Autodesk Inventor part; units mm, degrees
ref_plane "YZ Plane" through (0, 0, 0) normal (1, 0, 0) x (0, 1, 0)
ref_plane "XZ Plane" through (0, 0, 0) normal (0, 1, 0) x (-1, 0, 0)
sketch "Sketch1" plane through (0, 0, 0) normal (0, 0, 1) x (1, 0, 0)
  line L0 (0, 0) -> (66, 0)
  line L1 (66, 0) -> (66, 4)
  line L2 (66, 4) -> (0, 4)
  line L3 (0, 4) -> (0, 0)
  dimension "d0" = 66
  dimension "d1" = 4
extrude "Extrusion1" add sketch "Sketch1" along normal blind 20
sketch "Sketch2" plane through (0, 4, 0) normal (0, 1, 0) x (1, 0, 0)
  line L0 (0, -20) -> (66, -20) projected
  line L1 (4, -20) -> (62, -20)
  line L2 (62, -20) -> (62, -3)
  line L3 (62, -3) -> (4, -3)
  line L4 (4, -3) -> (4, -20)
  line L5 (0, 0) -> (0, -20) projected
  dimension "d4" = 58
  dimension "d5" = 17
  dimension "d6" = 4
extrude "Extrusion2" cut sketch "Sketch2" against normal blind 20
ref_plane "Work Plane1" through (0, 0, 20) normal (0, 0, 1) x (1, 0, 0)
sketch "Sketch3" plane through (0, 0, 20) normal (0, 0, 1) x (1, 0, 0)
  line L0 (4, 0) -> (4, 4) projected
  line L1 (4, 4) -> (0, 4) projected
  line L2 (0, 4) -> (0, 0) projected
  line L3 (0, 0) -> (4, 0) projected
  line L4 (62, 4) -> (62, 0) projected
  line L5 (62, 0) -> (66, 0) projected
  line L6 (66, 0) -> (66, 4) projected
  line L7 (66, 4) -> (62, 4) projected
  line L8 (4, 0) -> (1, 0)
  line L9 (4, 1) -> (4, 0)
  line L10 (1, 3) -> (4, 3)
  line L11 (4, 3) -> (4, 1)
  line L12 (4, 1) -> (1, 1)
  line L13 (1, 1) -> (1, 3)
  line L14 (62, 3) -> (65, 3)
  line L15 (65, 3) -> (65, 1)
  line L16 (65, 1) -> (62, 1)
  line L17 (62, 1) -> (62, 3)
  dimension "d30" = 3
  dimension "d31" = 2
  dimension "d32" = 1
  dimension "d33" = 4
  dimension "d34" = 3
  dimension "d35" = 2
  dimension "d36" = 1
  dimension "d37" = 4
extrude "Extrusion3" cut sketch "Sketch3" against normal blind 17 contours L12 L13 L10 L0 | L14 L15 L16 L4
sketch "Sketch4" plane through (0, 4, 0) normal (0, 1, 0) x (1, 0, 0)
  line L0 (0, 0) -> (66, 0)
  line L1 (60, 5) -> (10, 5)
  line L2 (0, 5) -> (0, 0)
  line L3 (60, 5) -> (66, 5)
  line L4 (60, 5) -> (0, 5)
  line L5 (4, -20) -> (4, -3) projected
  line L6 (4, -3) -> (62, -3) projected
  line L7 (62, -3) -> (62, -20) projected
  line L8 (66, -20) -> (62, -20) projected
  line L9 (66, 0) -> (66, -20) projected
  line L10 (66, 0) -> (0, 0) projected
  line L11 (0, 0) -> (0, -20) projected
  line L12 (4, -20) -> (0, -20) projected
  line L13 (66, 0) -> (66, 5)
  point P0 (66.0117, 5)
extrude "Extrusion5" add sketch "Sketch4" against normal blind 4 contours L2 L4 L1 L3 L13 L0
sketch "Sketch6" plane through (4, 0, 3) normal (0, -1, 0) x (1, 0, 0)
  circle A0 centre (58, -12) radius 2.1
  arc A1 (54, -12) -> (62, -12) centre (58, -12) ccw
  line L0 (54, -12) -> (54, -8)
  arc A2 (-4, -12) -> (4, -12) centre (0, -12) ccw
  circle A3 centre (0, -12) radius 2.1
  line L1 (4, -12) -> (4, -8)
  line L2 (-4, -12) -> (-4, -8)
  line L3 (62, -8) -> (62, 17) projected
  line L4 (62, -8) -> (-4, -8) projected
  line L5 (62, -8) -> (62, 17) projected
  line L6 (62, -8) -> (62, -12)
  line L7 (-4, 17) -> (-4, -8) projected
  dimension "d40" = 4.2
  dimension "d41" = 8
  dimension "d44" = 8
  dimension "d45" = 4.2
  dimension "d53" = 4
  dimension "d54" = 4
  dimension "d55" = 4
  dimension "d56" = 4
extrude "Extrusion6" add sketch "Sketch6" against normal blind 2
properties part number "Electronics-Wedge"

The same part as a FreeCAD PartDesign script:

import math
import FreeCAD as App
import Part
import Sketcher
Q = App.Units.Quantity

doc = App.newDocument("Part")
body = doc.addObject("PartDesign::Body", "Body")

sketch1 = doc.addObject("Sketcher::SketchObject", "Sketch")
body.addObject(sketch1)
sketch1.AttachmentSupport = (doc.XY_Plane, [""])
sketch1.MapMode = "FlatFace"
sketch1.addGeometry([
    Part.LineSegment(App.Vector(0, 4, 0), App.Vector(0, 0, 0)),
    Part.LineSegment(App.Vector(0, 0, 0), App.Vector(66, 0, 0)),
    Part.LineSegment(App.Vector(66, 0, 0), App.Vector(66, 4, 0)),
    Part.LineSegment(App.Vector(66, 4, 0), App.Vector(0, 4, 0)),
], False)
sketch1.addConstraint([
    Sketcher.Constraint("Coincident", 0, 2, 1, 1),
    Sketcher.Constraint("Coincident", 1, 2, 2, 1),
    Sketcher.Constraint("Coincident", 2, 2, 3, 1),
    Sketcher.Constraint("Coincident", 3, 2, 0, 1),
    Sketcher.Constraint("Vertical", 0),
    Sketcher.Constraint("Horizontal", 1),
    Sketcher.Constraint("Vertical", 2),
    Sketcher.Constraint("Horizontal", 3),
    Sketcher.Constraint("Coincident", 0, 2, -1, 1),
    Sketcher.Constraint("DistanceX", 1, 1, 1, 2, Q("66 mm")),
    Sketcher.Constraint("DistanceY", 0, 2, 0, 1, Q("4 mm")),
])
pad1 = doc.addObject("PartDesign::Pad", "Pad")
body.addObject(pad1)
pad1.Profile = sketch1
pad1.Length = 20

sketch2 = doc.addObject("Sketcher::SketchObject", "Sketch001")
body.addObject(sketch2)
sketch2.AttachmentSupport = (doc.XZ_Plane, [""])
sketch2.MapMode = "FlatFace"
sketch2.AttachmentOffset = App.Placement(App.Vector(0, 0, -4), App.Rotation())
sketch2.addGeometry([
    Part.LineSegment(App.Vector(4, 3, 0), App.Vector(4, 20, 0)),
    Part.LineSegment(App.Vector(4, 20, 0), App.Vector(62, 20, 0)),
    Part.LineSegment(App.Vector(62, 20, 0), App.Vector(62, 3, 0)),
    Part.LineSegment(App.Vector(62, 3, 0), App.Vector(4, 3, 0)),
], False)
sketch2.addConstraint([
    Sketcher.Constraint("Coincident", 0, 2, 1, 1),
    Sketcher.Constraint("Coincident", 1, 2, 2, 1),
    Sketcher.Constraint("Coincident", 2, 2, 3, 1),
    Sketcher.Constraint("Coincident", 3, 2, 0, 1),
    Sketcher.Constraint("Vertical", 0),
    Sketcher.Constraint("Horizontal", 1),
    Sketcher.Constraint("Vertical", 2),
    Sketcher.Constraint("Horizontal", 3),
    Sketcher.Constraint("DistanceX", 1, 1, 1, 2, Q("58 mm")),
    Sketcher.Constraint("DistanceY", 0, 1, 0, 2, Q("17 mm")),
    Sketcher.Constraint("DistanceX", -1, 1, 0, 2, Q("4 mm")),
    Sketcher.Constraint("DistanceY", -1, 1, 0, 2, Q("20 mm")),
])
pocket1 = doc.addObject("PartDesign::Pocket", "Pocket")
body.addObject(pocket1)
pocket1.Profile = sketch2
pocket1.Length = 20
pocket1.Reversed = True

sketch3 = doc.addObject("Sketcher::SketchObject", "Sketch002")
body.addObject(sketch3)
sketch3.AttachmentSupport = (doc.XY_Plane, [""])
sketch3.MapMode = "FlatFace"
sketch3.AttachmentOffset = App.Placement(App.Vector(0, 0, 20), App.Rotation())
sketch3.addGeometry([
    Part.LineSegment(App.Vector(1, 1, 0), App.Vector(4, 1, 0)),
    Part.LineSegment(App.Vector(4, 1, 0), App.Vector(4, 3, 0)),
    Part.LineSegment(App.Vector(4, 3, 0), App.Vector(1, 3, 0)),
    Part.LineSegment(App.Vector(1, 3, 0), App.Vector(1, 1, 0)),
    Part.LineSegment(App.Vector(65, 3, 0), App.Vector(62, 3, 0)),
    Part.LineSegment(App.Vector(62, 3, 0), App.Vector(62, 1, 0)),
    Part.LineSegment(App.Vector(62, 1, 0), App.Vector(65, 1, 0)),
    Part.LineSegment(App.Vector(65, 1, 0), App.Vector(65, 3, 0)),
], False)
sketch3.addConstraint([
    Sketcher.Constraint("Coincident", 0, 2, 1, 1),
    Sketcher.Constraint("Coincident", 1, 2, 2, 1),
    Sketcher.Constraint("Coincident", 2, 2, 3, 1),
    Sketcher.Constraint("Coincident", 3, 2, 0, 1),
    Sketcher.Constraint("Coincident", 4, 2, 5, 1),
    Sketcher.Constraint("Coincident", 5, 2, 6, 1),
    Sketcher.Constraint("Coincident", 6, 2, 7, 1),
    Sketcher.Constraint("Coincident", 7, 2, 4, 1),
    Sketcher.Constraint("Horizontal", 0),
    Sketcher.Constraint("Vertical", 1),
    Sketcher.Constraint("Horizontal", 2),
    Sketcher.Constraint("Vertical", 3),
    Sketcher.Constraint("Horizontal", 4),
    Sketcher.Constraint("Vertical", 5),
    Sketcher.Constraint("Horizontal", 6),
    Sketcher.Constraint("Vertical", 7),
    Sketcher.Constraint("Horizontal", 2, 2, 4, 2),
    Sketcher.Constraint("Horizontal", 3, 2, 5, 2),
    Sketcher.Constraint("Equal", 2, 4),
    Sketcher.Constraint("DistanceX", 0, 1, 0, 2, Q("3 mm")),
    Sketcher.Constraint("DistanceY", 1, 1, 1, 2, Q("2 mm")),
    Sketcher.Constraint("DistanceX", -1, 1, 0, 2, Q("4 mm")),
    Sketcher.Constraint("DistanceY", -1, 1, 0, 2, Q("1 mm")),
    Sketcher.Constraint("DistanceX", -1, 1, 4, 2, Q("62 mm")),
])
pocket2 = doc.addObject("PartDesign::Pocket", "Pocket001")
body.addObject(pocket2)
pocket2.Profile = sketch3
pocket2.Length = 17

sketch4 = doc.addObject("Sketcher::SketchObject", "Sketch003")
body.addObject(sketch4)
sketch4.AttachmentSupport = (doc.XZ_Plane, [""])
sketch4.MapMode = "FlatFace"
sketch4.AttachmentOffset = App.Placement(App.Vector(0, 0, -4), App.Rotation())
sketch4.addGeometry([
    Part.LineSegment(App.Vector(0, -5, 0), App.Vector(0, 0, 0)),
    Part.LineSegment(App.Vector(0, 0, 0), App.Vector(66, 0, 0)),
    Part.LineSegment(App.Vector(66, 0, 0), App.Vector(66, -5, 0)),
    Part.LineSegment(App.Vector(66, -5, 0), App.Vector(0, -5, 0)),
], False)
sketch4.addConstraint([
    Sketcher.Constraint("Coincident", 0, 2, 1, 1),
    Sketcher.Constraint("Coincident", 1, 2, 2, 1),
    Sketcher.Constraint("Coincident", 2, 2, 3, 1),
    Sketcher.Constraint("Coincident", 3, 2, 0, 1),
    Sketcher.Constraint("Vertical", 0),
    Sketcher.Constraint("Horizontal", 1),
    Sketcher.Constraint("Vertical", 2),
    Sketcher.Constraint("Horizontal", 3),
    Sketcher.Constraint("Coincident", 0, 2, -1, 1),
    Sketcher.Constraint("DistanceX", 1, 1, 1, 2, Q("66 mm")),
    Sketcher.Constraint("DistanceY", 0, 1, 0, 2, Q("5 mm")),
])
pad2 = doc.addObject("PartDesign::Pad", "Pad001")
body.addObject(pad2)
pad2.Profile = sketch4
pad2.Length = 4

sketch5 = doc.addObject("Sketcher::SketchObject", "Sketch004")
body.addObject(sketch5)
sketch5.AttachmentSupport = (doc.XZ_Plane, [""])
sketch5.MapMode = "FlatFace"
sketch5.addGeometry([
    Part.LineSegment(App.Vector(58, -5, 0), App.Vector(58, -9, 0)),
    Part.ArcOfCircle(Part.Circle(App.Vector(62, -9, 0), App.Vector(0, 0, 1), 4), math.radians(180), math.radians(360)),
    Part.LineSegment(App.Vector(66, -9, 0), App.Vector(66, -5, 0)),
    Part.LineSegment(App.Vector(66, -5, 0), App.Vector(58, -5, 0)),
    Part.Circle(App.Vector(62, -9, 0), App.Vector(0, 0, 1), 2.1),
    Part.LineSegment(App.Vector(8, -9, 0), App.Vector(8, -5, 0)),
    Part.LineSegment(App.Vector(8, -5, 0), App.Vector(0, -5, 0)),
    Part.LineSegment(App.Vector(0, -5, 0), App.Vector(0, -9, 0)),
    Part.ArcOfCircle(Part.Circle(App.Vector(4, -9, 0), App.Vector(0, 0, 1), 4), math.radians(180), math.radians(360)),
    Part.Circle(App.Vector(4, -9, 0), App.Vector(0, 0, 1), 2.1),
], False)
sketch5.addConstraint([
    Sketcher.Constraint("Tangent", 0, 2, 1, 1),
    Sketcher.Constraint("Tangent", 1, 2, 2, 1),
    Sketcher.Constraint("Coincident", 2, 2, 3, 1),
    Sketcher.Constraint("Coincident", 3, 2, 0, 1),
    Sketcher.Constraint("Coincident", 5, 2, 6, 1),
    Sketcher.Constraint("Coincident", 6, 2, 7, 1),
    Sketcher.Constraint("Tangent", 7, 2, 8, 1),
    Sketcher.Constraint("Tangent", 8, 2, 5, 1),
    Sketcher.Constraint("Vertical", 0),
    Sketcher.Constraint("Vertical", 2),
    Sketcher.Constraint("Horizontal", 3),
    Sketcher.Constraint("Vertical", 5),
    Sketcher.Constraint("Horizontal", 6),
    Sketcher.Constraint("Vertical", 7),
    Sketcher.Constraint("Coincident", 4, 3, 1, 3),
    Sketcher.Constraint("Coincident", 9, 3, 8, 3),
    Sketcher.Constraint("Equal", 1, 8),
    Sketcher.Constraint("Equal", 4, 9),
    Sketcher.Constraint("PointOnObject", 6, 2, -2),
    Sketcher.Constraint("Horizontal", 4, 3, 8, 3),
    Sketcher.Constraint("Horizontal", 3, 2, 5, 2),
    Sketcher.Constraint("Radius", 1, Q("4 mm")),
    Sketcher.Constraint("Diameter", 4, Q("4.2 mm")),
    Sketcher.Constraint("DistanceY", 0, 2, 0, 1, Q("4 mm")),
    Sketcher.Constraint("DistanceX", -1, 1, 1, 3, Q("62 mm")),
    Sketcher.Constraint("DistanceY", 1, 3, -1, 1, Q("9 mm")),
])
pad3 = doc.addObject("PartDesign::Pad", "Pad002")
body.addObject(pad3)
pad3.Profile = sketch5
pad3.Length = 2
pad3.Reversed = True

doc.recompute()
